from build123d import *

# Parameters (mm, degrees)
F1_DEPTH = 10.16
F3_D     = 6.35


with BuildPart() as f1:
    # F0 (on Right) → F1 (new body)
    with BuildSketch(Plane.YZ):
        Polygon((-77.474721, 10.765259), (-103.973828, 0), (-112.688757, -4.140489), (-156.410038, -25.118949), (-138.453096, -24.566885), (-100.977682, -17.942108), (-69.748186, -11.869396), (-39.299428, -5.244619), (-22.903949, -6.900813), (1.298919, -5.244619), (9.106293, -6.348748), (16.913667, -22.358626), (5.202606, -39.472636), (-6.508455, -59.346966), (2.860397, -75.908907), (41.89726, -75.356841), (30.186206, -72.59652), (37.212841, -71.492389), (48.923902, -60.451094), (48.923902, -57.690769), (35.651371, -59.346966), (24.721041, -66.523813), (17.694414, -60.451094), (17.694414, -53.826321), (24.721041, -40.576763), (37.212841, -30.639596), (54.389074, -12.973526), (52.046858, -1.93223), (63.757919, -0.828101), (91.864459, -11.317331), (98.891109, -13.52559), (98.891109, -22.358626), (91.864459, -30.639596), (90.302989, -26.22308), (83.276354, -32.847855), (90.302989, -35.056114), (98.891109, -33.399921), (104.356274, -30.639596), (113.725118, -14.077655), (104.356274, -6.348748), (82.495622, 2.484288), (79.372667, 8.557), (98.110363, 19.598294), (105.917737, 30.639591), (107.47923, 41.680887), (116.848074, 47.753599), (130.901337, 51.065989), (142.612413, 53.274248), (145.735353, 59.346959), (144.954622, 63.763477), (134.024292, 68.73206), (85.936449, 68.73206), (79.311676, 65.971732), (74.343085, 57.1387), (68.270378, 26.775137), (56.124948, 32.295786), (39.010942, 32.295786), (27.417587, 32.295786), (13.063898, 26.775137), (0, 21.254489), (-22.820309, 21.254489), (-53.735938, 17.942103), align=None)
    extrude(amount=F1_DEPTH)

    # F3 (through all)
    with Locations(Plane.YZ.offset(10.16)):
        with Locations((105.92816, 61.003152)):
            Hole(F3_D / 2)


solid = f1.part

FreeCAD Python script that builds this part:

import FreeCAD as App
import Part
import Sketcher
Q = App.Units.Quantity

doc = App.newDocument("Part")
body = doc.addObject("PartDesign::Body", "Body")

# Sketch on YZ plane
sketch1 = body.newObject("Sketcher::SketchObject", "Sketch")
sketch1.AttachmentSupport = (doc.getObject("YZ_Plane"), [""])
sketch1.MapMode = "FlatFace"
sketch1.addGeometry([
    Part.LineSegment(App.Vector(-77.474721, 10.765259, 0), App.Vector(-103.973828, 0, 0)),  # 0
    Part.LineSegment(App.Vector(-103.973828, 0, 0), App.Vector(-112.688757, -4.140489, 0)),  # 1
    Part.LineSegment(App.Vector(-112.688757, -4.140489, 0), App.Vector(-156.410038, -25.118949, 0)),  # 2
    Part.LineSegment(App.Vector(-156.410038, -25.118949, 0), App.Vector(-138.453096, -24.566885, 0)),  # 3
    Part.LineSegment(App.Vector(-138.453096, -24.566885, 0), App.Vector(-100.977682, -17.942108, 0)),  # 4
    Part.LineSegment(App.Vector(-100.977682, -17.942108, 0), App.Vector(-69.748186, -11.869396, 0)),  # 5
    Part.LineSegment(App.Vector(-69.748186, -11.869396, 0), App.Vector(-39.299428, -5.244619, 0)),  # 6
    Part.LineSegment(App.Vector(-39.299428, -5.244619, 0), App.Vector(-22.903949, -6.900813, 0)),  # 7
    Part.LineSegment(App.Vector(-22.903949, -6.900813, 0), App.Vector(1.298919, -5.244619, 0)),  # 8
    Part.LineSegment(App.Vector(1.298919, -5.244619, 0), App.Vector(9.106293, -6.348748, 0)),  # 9
    Part.LineSegment(App.Vector(9.106293, -6.348748, 0), App.Vector(16.913667, -22.358626, 0)),  # 10
    Part.LineSegment(App.Vector(16.913667, -22.358626, 0), App.Vector(5.202606, -39.472636, 0)),  # 11
    Part.LineSegment(App.Vector(5.202606, -39.472636, 0), App.Vector(-6.508455, -59.346966, 0)),  # 12
    Part.LineSegment(App.Vector(-6.508455, -59.346966, 0), App.Vector(2.860397, -75.908907, 0)),  # 13
    Part.LineSegment(App.Vector(2.860397, -75.908907, 0), App.Vector(41.89726, -75.356841, 0)),  # 14
    Part.LineSegment(App.Vector(41.89726, -75.356841, 0), App.Vector(30.186206, -72.59652, 0)),  # 15
    Part.LineSegment(App.Vector(30.186206, -72.59652, 0), App.Vector(37.212841, -71.492389, 0)),  # 16
    Part.LineSegment(App.Vector(37.212841, -71.492389, 0), App.Vector(48.923902, -60.451094, 0)),  # 17
    Part.LineSegment(App.Vector(48.923902, -60.451094, 0), App.Vector(48.923902, -57.690769, 0)),  # 18
    Part.LineSegment(App.Vector(48.923902, -57.690769, 0), App.Vector(35.651371, -59.346966, 0)),  # 19
    Part.LineSegment(App.Vector(35.651371, -59.346966, 0), App.Vector(24.721041, -66.523813, 0)),  # 20
    Part.LineSegment(App.Vector(24.721041, -66.523813, 0), App.Vector(17.694414, -60.451094, 0)),  # 21
    Part.LineSegment(App.Vector(17.694414, -60.451094, 0), App.Vector(17.694414, -53.826321, 0)),  # 22
    Part.LineSegment(App.Vector(17.694414, -53.826321, 0), App.Vector(24.721041, -40.576763, 0)),  # 23
    Part.LineSegment(App.Vector(24.721041, -40.576763, 0), App.Vector(37.212841, -30.639596, 0)),  # 24
    Part.LineSegment(App.Vector(37.212841, -30.639596, 0), App.Vector(54.389074, -12.973526, 0)),  # 25
    Part.LineSegment(App.Vector(54.389074, -12.973526, 0), App.Vector(52.046858, -1.93223, 0)),  # 26
    Part.LineSegment(App.Vector(52.046858, -1.93223, 0), App.Vector(63.757919, -0.828101, 0)),  # 27
    Part.LineSegment(App.Vector(63.757919, -0.828101, 0), App.Vector(91.864459, -11.317331, 0)),  # 28
    Part.LineSegment(App.Vector(91.864459, -11.317331, 0), App.Vector(98.891109, -13.52559, 0)),  # 29
    Part.LineSegment(App.Vector(98.891109, -13.52559, 0), App.Vector(98.891109, -22.358626, 0)),  # 30
    Part.LineSegment(App.Vector(98.891109, -22.358626, 0), App.Vector(91.864459, -30.639596, 0)),  # 31
    Part.LineSegment(App.Vector(91.864459, -30.639596, 0), App.Vector(90.302989, -26.22308, 0)),  # 32
    Part.LineSegment(App.Vector(90.302989, -26.22308, 0), App.Vector(83.276354, -32.847855, 0)),  # 33
    Part.LineSegment(App.Vector(83.276354, -32.847855, 0), App.Vector(90.302989, -35.056114, 0)),  # 34
    Part.LineSegment(App.Vector(90.302989, -35.056114, 0), App.Vector(98.891109, -33.399921, 0)),  # 35
    Part.LineSegment(App.Vector(98.891109, -33.399921, 0), App.Vector(104.356274, -30.639596, 0)),  # 36
    Part.LineSegment(App.Vector(104.356274, -30.639596, 0), App.Vector(113.725118, -14.077655, 0)),  # 37
    Part.LineSegment(App.Vector(113.725118, -14.077655, 0), App.Vector(104.356274, -6.348748, 0)),  # 38
    Part.LineSegment(App.Vector(104.356274, -6.348748, 0), App.Vector(82.495622, 2.484288, 0)),  # 39
    Part.LineSegment(App.Vector(82.495622, 2.484288, 0), App.Vector(79.372667, 8.557, 0)),  # 40
    Part.LineSegment(App.Vector(79.372667, 8.557, 0), App.Vector(98.110363, 19.598294, 0)),  # 41
    Part.LineSegment(App.Vector(98.110363, 19.598294, 0), App.Vector(105.917737, 30.639591, 0)),  # 42
    Part.LineSegment(App.Vector(105.917737, 30.639591, 0), App.Vector(107.47923, 41.680887, 0)),  # 43
    Part.LineSegment(App.Vector(107.47923, 41.680887, 0), App.Vector(116.848074, 47.753599, 0)),  # 44
    Part.LineSegment(App.Vector(116.848074, 47.753599, 0), App.Vector(130.901337, 51.065989, 0)),  # 45
    Part.LineSegment(App.Vector(130.901337, 51.065989, 0), App.Vector(142.612413, 53.274248, 0)),  # 46
    Part.LineSegment(App.Vector(142.612413, 53.274248, 0), App.Vector(145.735353, 59.346959, 0)),  # 47
    Part.LineSegment(App.Vector(145.735353, 59.346959, 0), App.Vector(144.954622, 63.763477, 0)),  # 48
    Part.LineSegment(App.Vector(144.954622, 63.763477, 0), App.Vector(134.024292, 68.73206, 0)),  # 49
    Part.LineSegment(App.Vector(134.024292, 68.73206, 0), App.Vector(85.936449, 68.73206, 0)),  # 50
    Part.LineSegment(App.Vector(85.936449, 68.73206, 0), App.Vector(79.311676, 65.971732, 0)),  # 51
    Part.LineSegment(App.Vector(79.311676, 65.971732, 0), App.Vector(74.343085, 57.1387, 0)),  # 52
    Part.LineSegment(App.Vector(74.343085, 57.1387, 0), App.Vector(68.270378, 26.775137, 0)),  # 53
    Part.LineSegment(App.Vector(68.270378, 26.775137, 0), App.Vector(56.124948, 32.295786, 0)),  # 54
    Part.LineSegment(App.Vector(56.124948, 32.295786, 0), App.Vector(27.417587, 32.295786, 0)),  # 55
    Part.LineSegment(App.Vector(27.417587, 32.295786, 0), App.Vector(13.063898, 26.775137, 0)),  # 56
    Part.LineSegment(App.Vector(13.063898, 26.775137, 0), App.Vector(0, 21.254489, 0)),  # 57
    Part.LineSegment(App.Vector(0, 21.254489, 0), App.Vector(-22.820309, 21.254489, 0)),  # 58
    Part.LineSegment(App.Vector(-22.820309, 21.254489, 0), App.Vector(-53.735938, 17.942103, 0)),  # 59
    Part.LineSegment(App.Vector(-53.735938, 17.942103, 0), App.Vector(-77.474721, 10.765259, 0)),  # 60
], False)
sketch1.addConstraint([
    Sketcher.Constraint("Coincident", 0, 2, 1, 1),
    Sketcher.Constraint("Coincident", 1, 2, 2, 1),
    Sketcher.Constraint("Coincident", 2, 2, 3, 1),
    Sketcher.Constraint("Coincident", 3, 2, 4, 1),
    Sketcher.Constraint("Coincident", 4, 2, 5, 1),
    Sketcher.Constraint("Coincident", 5, 2, 6, 1),
    Sketcher.Constraint("Coincident", 6, 2, 7, 1),
    Sketcher.Constraint("Coincident", 7, 2, 8, 1),
    Sketcher.Constraint("Coincident", 8, 2, 9, 1),
    Sketcher.Constraint("Coincident", 9, 2, 10, 1),
    Sketcher.Constraint("Coincident", 10, 2, 11, 1),
    Sketcher.Constraint("Coincident", 11, 2, 12, 1),
    Sketcher.Constraint("Coincident", 12, 2, 13, 1),
    Sketcher.Constraint("Coincident", 13, 2, 14, 1),
    Sketcher.Constraint("Coincident", 14, 2, 15, 1),
    Sketcher.Constraint("Coincident", 15, 2, 16, 1),
    Sketcher.Constraint("Coincident", 16, 2, 17, 1),
    Sketcher.Constraint("Coincident", 17, 2, 18, 1),
    Sketcher.Constraint("Coincident", 18, 2, 19, 1),
    Sketcher.Constraint("Coincident", 19, 2, 20, 1),
    Sketcher.Constraint("Coincident", 20, 2, 21, 1),
    Sketcher.Constraint("Coincident", 21, 2, 22, 1),
    Sketcher.Constraint("Coincident", 22, 2, 23, 1),
    Sketcher.Constraint("Coincident", 23, 2, 24, 1),
    Sketcher.Constraint("Coincident", 24, 2, 25, 1),
    Sketcher.Constraint("Coincident", 25, 2, 26, 1),
    Sketcher.Constraint("Coincident", 26, 2, 27, 1),
    Sketcher.Constraint("Coincident", 27, 2, 28, 1),
    Sketcher.Constraint("Coincident", 28, 2, 29, 1),
    Sketcher.Constraint("Coincident", 29, 2, 30, 1),
    Sketcher.Constraint("Coincident", 30, 2, 31, 1),
    Sketcher.Constraint("Coincident", 31, 2, 32, 1),
    Sketcher.Constraint("Coincident", 32, 2, 33, 1),
    Sketcher.Constraint("Coincident", 33, 2, 34, 1),
    Sketcher.Constraint("Coincident", 34, 2, 35, 1),
    Sketcher.Constraint("Coincident", 35, 2, 36, 1),
    Sketcher.Constraint("Coincident", 36, 2, 37, 1),
    Sketcher.Constraint("Coincident", 37, 2, 38, 1),
    Sketcher.Constraint("Coincident", 38, 2, 39, 1),
    Sketcher.Constraint("Coincident", 39, 2, 40, 1),
    Sketcher.Constraint("Coincident", 40, 2, 41, 1),
    Sketcher.Constraint("Coincident", 41, 2, 42, 1),
    Sketcher.Constraint("Coincident", 42, 2, 43, 1),
    Sketcher.Constraint("Coincident", 43, 2, 44, 1),
    Sketcher.Constraint("Coincident", 44, 2, 45, 1),
    Sketcher.Constraint("Coincident", 45, 2, 46, 1),
    Sketcher.Constraint("Coincident", 46, 2, 47, 1),
    Sketcher.Constraint("Coincident", 47, 2, 48, 1),
    Sketcher.Constraint("Coincident", 48, 2, 49, 1),
    Sketcher.Constraint("Coincident", 49, 2, 50, 1),
    Sketcher.Constraint("Coincident", 50, 2, 51, 1),
    Sketcher.Constraint("Coincident", 51, 2, 52, 1),
    Sketcher.Constraint("Coincident", 52, 2, 53, 1),
    Sketcher.Constraint("Coincident", 53, 2, 54, 1),
    Sketcher.Constraint("Coincident", 54, 2, 55, 1),
    Sketcher.Constraint("Coincident", 55, 2, 56, 1),
    Sketcher.Constraint("Coincident", 56, 2, 57, 1),
    Sketcher.Constraint("Coincident", 57, 2, 58, 1),
    Sketcher.Constraint("Coincident", 58, 2, 59, 1),
    Sketcher.Constraint("Coincident", 59, 2, 60, 1),
    Sketcher.Constraint("Coincident", 60, 2, 0, 1),
    Sketcher.Constraint("Vertical", 18),
    Sketcher.Constraint("Vertical", 22),
    Sketcher.Constraint("Vertical", 30),
    Sketcher.Constraint("Horizontal", 50),
    Sketcher.Constraint("Horizontal", 55),
    Sketcher.Constraint("Horizontal", 58),
    Sketcher.Constraint("PointOnObject", 0, 2, -1),
    Sketcher.Constraint("PointOnObject", 57, 2, -2),
    Sketcher.Constraint("DistanceY", 3, 2, -1, 1, Q("0.9672002 in")),
    Sketcher.Constraint("Distance", 31, 10.860399),
    Sketcher.Constraint("DistanceX", 55, 2, 55, 1, 28.707361),
    Sketcher.Constraint("DistanceX", 58, 2, 58, 1, 22.820309),
    Sketcher.Constraint("DistanceX", -1, 1, 17, 2, 48.923902),
    Sketcher.Constraint("DistanceY", 27, 2, -1, 1, 0.828101),
    Sketcher.Constraint("DistanceY", -1, 1, 40, 2, 8.557),
    Sketcher.Constraint("DistanceY", -1, 1, 44, 2, 47.753599),
    Sketcher.Constraint("DistanceY", -1, 1, 52, 2, 57.1387),
    Sketcher.Constraint("Distance", 5, 31.81445),
    Sketcher.Constraint("Distance", 8, 24.259468),
    Sketcher.Constraint("Distance", 9, 7.885061),
    Sketcher.Constraint("Distance", 10, 17.812111),
    Sketcher.Constraint("Distance", 32, 4.684421),
    Sketcher.Constraint("Distance", 34, 7.36546),
    Sketcher.Constraint("Distance", 35, 8.746358),
    Sketcher.Constraint("Distance", 37, 19.028219),
    Sketcher.Constraint("Distance", 38, 12.145421),
    Sketcher.Constraint("Distance", 42, 13.522771),
    Sketcher.Constraint("Distance", 47, 6.828658),
    Sketcher.Constraint("Distance", 49, 12.00662),
    Sketcher.Constraint("Distance", 51, 7.17684),
    Sketcher.Constraint("Distance", 53, 30.964879),
    Sketcher.Constraint("Distance", 56, 15.37875),
    Sketcher.Constraint("Distance", 57, 14.182489),
    Sketcher.Constraint("Distance", 59, 31.092572),
    Sketcher.Constraint("DistanceX", 50, 2, 50, 1, 48.087843),
    Sketcher.Constraint("DistanceY", 18, 1, 18, 2, 2.760325),
    Sketcher.Constraint("DistanceY", 22, 1, 22, 2, 6.624773),
    Sketcher.Constraint("DistanceY", 30, 2, 30, 1, 8.833036),
    Sketcher.Constraint("DistanceY", 1, 2, -1, 1, 4.140489),
    Sketcher.Constraint("DistanceY", 2, 2, -1, 1, 25.118949),
    Sketcher.Constraint("DistanceX", 4, 2, -1, 1, 100.977682),
    Sketcher.Constraint("DistanceY", 4, 2, -1, 1, 17.942108),
    Sketcher.Constraint("DistanceY", 6, 2, -1, 1, 5.244619),
    Sketcher.Constraint("DistanceX", 7, 2, -1, 1, 22.903949),
    Sketcher.Constraint("DistanceX", -1, 1, 8, 2, 1.298919),
    Sketcher.Constraint("DistanceY", 8, 2, -1, 1, 5.244619),
    Sketcher.Constraint("DistanceX", -1, 1, 14, 2, 41.89726),
    Sketcher.Constraint("DistanceY", 14, 2, -1, 1, 75.356841),
    Sketcher.Constraint("DistanceY", 15, 2, -1, 1, 72.59652),
    Sketcher.Constraint("DistanceX", -1, 1, 16, 2, 37.212841),
    Sketcher.Constraint("DistanceY", 16, 2, -1, 1, 71.492389),
    Sketcher.Constraint("DistanceY", 18, 2, -1, 1, 57.690769),
    Sketcher.Constraint("DistanceX", -1, 1, 19, 2, 35.651371),
    Sketcher.Constraint("DistanceX", -1, 1, 20, 2, 24.721041),
    Sketcher.Constraint("DistanceY", 22, 2, -1, 1, 53.826321),
    Sketcher.Constraint("DistanceX", -1, 1, 23, 2, 24.721041),
    Sketcher.Constraint("DistanceX", -1, 1, 24, 2, 37.212841),
    Sketcher.Constraint("DistanceY", 26, 2, -1, 1, 1.93223),
    Sketcher.Constraint("DistanceX", -1, 1, 27, 2, 63.757919),
    Sketcher.Constraint("DistanceX", -1, 1, 28, 2, 91.864459),
    Sketcher.Constraint("DistanceY", 28, 2, -1, 1, 11.317331),
    Sketcher.Constraint("DistanceX", -1, 1, 29, 2, 98.891109),
    Sketcher.Constraint("DistanceY", 29, 2, -1, 1, 13.52559),
    Sketcher.Constraint("DistanceX", -1, 1, 31, 2, 91.864459),
    Sketcher.Constraint("DistanceX", -1, 1, 32, 2, 90.302989),
    Sketcher.Constraint("DistanceX", -1, 1, 34, 2, 90.302989),
    Sketcher.Constraint("DistanceX", -1, 1, 35, 2, 98.891109),
    Sketcher.Constraint("DistanceY", 35, 2, -1, 1, 33.399921),
    Sketcher.Constraint("DistanceX", -1, 1, 39, 2, 82.495622),
    Sketcher.Constraint("DistanceY", -1, 1, 42, 2, 30.639591),
    Sketcher.Constraint("DistanceX", -1, 1, 43, 2, 107.47923),
    Sketcher.Constraint("DistanceY", -1, 1, 45, 2, 51.065989),
    Sketcher.Constraint("DistanceY", -1, 1, 47, 2, 59.346959),
    Sketcher.Constraint("DistanceX", -1, 1, 48, 2, 144.954622),
    Sketcher.Constraint("DistanceX", -1, 1, 49, 2, 134.024292),
    Sketcher.Constraint("DistanceY", -1, 1, 49, 2, 68.73206),
    Sketcher.Constraint("DistanceX", -1, 1, 54, 2, 56.124948),
    Sketcher.Constraint("DistanceY", -1, 1, 57, 2, 21.254489),
    Sketcher.Constraint("DistanceX", 60, 2, -1, 1, 77.474721),
    Sketcher.Constraint("DistanceY", -1, 1, 60, 2, 10.765259),
    Sketcher.Constraint("Distance", 0, 28.602333),
    Sketcher.Constraint("Distance", 1, 9.648504),
    Sketcher.Constraint("Distance", 2, 48.493775),
    Sketcher.Constraint("Distance", 3, 17.965426),
    Sketcher.Constraint("Distance", 6, 31.161106),
    Sketcher.Constraint("Distance", 7, 16.478917),
    Sketcher.Constraint("Distance", 11, 20.737365),
    Sketcher.Constraint("Distance", 12, 23.068115),
    Sketcher.Constraint("Distance", 13, 19.028223),
    Sketcher.Constraint("Distance", 14, 39.040767),
    Sketcher.Constraint("Distance", 15, 12.031964),
    Sketcher.Constraint("Distance", 19, 13.375465),
    Sketcher.Constraint("Distance", 20, 13.075903),
    Sketcher.Constraint("Distance", 21, 9.287163),
    Sketcher.Constraint("Distance", 23, 14.997476),
    Sketcher.Constraint("Distance", 24, 15.962216),
    Sketcher.Constraint("Distance", 25, 24.639663),
    Sketcher.Constraint("Distance", 26, 11.286992),
    Sketcher.Constraint("Distance", 27, 11.762995),
    Sketcher.Constraint("Distance", 33, 9.657186),
    Sketcher.Constraint("Distance", 36, 6.122697),
    Sketcher.Constraint("Distance", 39, 23.577757),
    Sketcher.Constraint("Distance", 40, 6.828666),
    Sketcher.Constraint("Distance", 41, 21.748826),
    Sketcher.Constraint("Distance", 43, 11.151165),
    Sketcher.Constraint("Distance", 44, 11.164814),
    Sketcher.Constraint("Distance", 45, 14.438356),
    Sketcher.Constraint("Distance", 46, 11.917454),
    Sketcher.Constraint("Distance", 48, 4.484994),
    Sketcher.Constraint("Distance", 52, 10.134562),
    Sketcher.Constraint("Distance", 54, 13.341253),
    Sketcher.Constraint("Distance", 60, 24.799938),
    Sketcher.Constraint("DistanceX", -1, 1, 9, 2, 9.106293),
    Sketcher.Constraint("DistanceX", -1, 1, 10, 2, 16.913667),
    Sketcher.Constraint("DistanceX", -1, 1, 11, 2, 5.202606),
    Sketcher.Constraint("DistanceX", 12, 2, -1, 1, 6.508455),
    Sketcher.Constraint("DistanceX", -1, 1, 36, 2, 104.356274),
    Sketcher.Constraint("DistanceX", -1, 1, 37, 2, 113.725118),
    Sketcher.Constraint("DistanceX", -1, 1, 38, 2, 104.356274),
    Sketcher.Constraint("DistanceX", -1, 1, 41, 2, 98.110363),
    Sketcher.Constraint("DistanceX", -1, 1, 51, 2, 79.311676),
    Sketcher.Constraint("DistanceX", -1, 1, 53, 2, 68.270378),
])
pad1 = body.newObject("PartDesign::Pad", "Pad")
pad1.Profile = sketch1
pad1.Length = Q("0.4 in")

# Sketch on YZ plane
sketch2 = body.newObject("Sketcher::SketchObject", "Sketch001")
sketch2.AttachmentSupport = (doc.getObject("YZ_Plane"), [""])
sketch2.MapMode = "FlatFace"
sketch2.AttachmentOffset = App.Placement(App.Vector(0, 0, 0.4 * 25.4), App.Rotation())
sketch2.addGeometry(Part.Circle(App.Vector(105.9, 61, 0), App.Vector(0, 0, 1), 3.2), False)
sketch2.addConstraint([
    Sketcher.Constraint("Diameter", 0, Q("0.25 in")),
    Sketcher.Constraint("DistanceX", -1, 1, 0, 3, Q("4.1704 in")),
    Sketcher.Constraint("DistanceY", -1, 1, 0, 3, 61.003152),
])
doc.recompute()
hole = body.newObject("PartDesign::Hole", "Hole")
hole.Profile = sketch2
hole.ThreadType = "None"
hole.Diameter = Q("0.25 in")
hole.DepthType = "ThroughAll"

doc.recompute()
